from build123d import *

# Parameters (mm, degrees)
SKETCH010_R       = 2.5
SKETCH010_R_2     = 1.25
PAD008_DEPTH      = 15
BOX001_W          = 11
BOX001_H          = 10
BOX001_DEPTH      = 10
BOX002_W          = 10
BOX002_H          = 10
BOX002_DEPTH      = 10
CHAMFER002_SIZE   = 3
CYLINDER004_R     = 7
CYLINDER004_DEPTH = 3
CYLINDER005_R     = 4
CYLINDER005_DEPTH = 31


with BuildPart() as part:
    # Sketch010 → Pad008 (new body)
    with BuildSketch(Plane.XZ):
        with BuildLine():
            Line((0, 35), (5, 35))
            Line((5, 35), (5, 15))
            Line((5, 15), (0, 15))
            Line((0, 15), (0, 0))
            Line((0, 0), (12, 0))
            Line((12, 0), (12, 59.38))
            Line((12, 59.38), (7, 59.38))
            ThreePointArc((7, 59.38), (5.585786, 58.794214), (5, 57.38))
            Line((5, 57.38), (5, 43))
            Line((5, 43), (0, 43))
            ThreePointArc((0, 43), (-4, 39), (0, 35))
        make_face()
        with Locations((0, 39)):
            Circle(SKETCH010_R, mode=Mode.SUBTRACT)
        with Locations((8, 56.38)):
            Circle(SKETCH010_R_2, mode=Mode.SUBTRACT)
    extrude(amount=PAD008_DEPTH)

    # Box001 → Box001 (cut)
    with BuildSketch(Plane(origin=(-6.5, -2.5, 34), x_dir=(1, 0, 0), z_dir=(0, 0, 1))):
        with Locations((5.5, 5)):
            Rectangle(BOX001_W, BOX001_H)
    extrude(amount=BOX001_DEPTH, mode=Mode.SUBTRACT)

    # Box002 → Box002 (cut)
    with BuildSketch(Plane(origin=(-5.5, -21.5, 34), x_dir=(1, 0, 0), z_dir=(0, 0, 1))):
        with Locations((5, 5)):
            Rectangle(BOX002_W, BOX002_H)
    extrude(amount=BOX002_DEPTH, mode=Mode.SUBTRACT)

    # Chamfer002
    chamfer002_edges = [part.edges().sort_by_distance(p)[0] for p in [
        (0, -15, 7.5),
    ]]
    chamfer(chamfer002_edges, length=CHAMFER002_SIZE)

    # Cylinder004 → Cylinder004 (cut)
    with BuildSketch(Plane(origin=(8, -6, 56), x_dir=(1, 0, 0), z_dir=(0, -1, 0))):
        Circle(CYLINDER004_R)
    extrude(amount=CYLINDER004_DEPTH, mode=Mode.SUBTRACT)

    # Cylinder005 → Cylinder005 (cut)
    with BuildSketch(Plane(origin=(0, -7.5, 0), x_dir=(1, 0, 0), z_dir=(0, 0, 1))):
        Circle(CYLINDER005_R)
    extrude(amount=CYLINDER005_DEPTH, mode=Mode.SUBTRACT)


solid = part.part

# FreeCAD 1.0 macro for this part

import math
import FreeCAD as App
import Part
import Sketcher


def edges_at(feature, points):
    """Names of the edges that pass closest to the given points."""
    edges = feature.Shape.Edges
    near = lambda p: min(range(len(edges)), key=lambda i: edges[i].distToShape(Part.Vertex(*p))[0])
    return sorted({f"Edge{near(p) + 1}" for p in points})

doc = App.newDocument("Part")
body = doc.addObject("PartDesign::Body", "Body")

sketch1 = body.newObject("Sketcher::SketchObject", "Sketch")
sketch1.AttachmentSupport = (doc.getObject("XZ_Plane"), [""])
sketch1.MapMode = "FlatFace"
sketch1.addGeometry([
    Part.LineSegment(App.Vector(0, 35, 0), App.Vector(5, 35, 0)),
    Part.LineSegment(App.Vector(5, 35, 0), App.Vector(5, 15, 0)),
    Part.LineSegment(App.Vector(5, 15, 0), App.Vector(0, 15, 0)),
    Part.LineSegment(App.Vector(0, 15, 0), App.Vector(0, 0, 0)),
    Part.LineSegment(App.Vector(0, 0, 0), App.Vector(12, 0, 0)),
    Part.LineSegment(App.Vector(12, 0, 0), App.Vector(12, 59.4, 0)),
    Part.LineSegment(App.Vector(12, 59.4, 0), App.Vector(7, 59.4, 0)),
    Part.ArcOfCircle(Part.Circle(App.Vector(7, 57.4, 0), App.Vector(0, 0, 1), 2), math.radians(90), math.radians(180)),
    Part.LineSegment(App.Vector(5, 57.4, 0), App.Vector(5, 43, 0)),
    Part.LineSegment(App.Vector(5, 43, 0), App.Vector(0, 43, 0)),
    Part.ArcOfCircle(Part.Circle(App.Vector(0, 39, 0), App.Vector(0, 0, 1), 4), math.radians(90), math.radians(270)),
    Part.Circle(App.Vector(0, 39, 0), App.Vector(0, 0, 1), 2.5),
    Part.Circle(App.Vector(8, 56.4, 0), App.Vector(0, 0, 1), 1.2),
], False)
sketch1.addConstraint([
    Sketcher.Constraint("Coincident", 0, 2, 1, 1),
    Sketcher.Constraint("Coincident", 1, 2, 2, 1),
    Sketcher.Constraint("Coincident", 2, 2, 3, 1),
    Sketcher.Constraint("Coincident", 3, 2, 4, 1),
    Sketcher.Constraint("Coincident", 4, 2, 5, 1),
    Sketcher.Constraint("Coincident", 5, 2, 6, 1),
    Sketcher.Constraint("Tangent", 6, 2, 7, 1),
    Sketcher.Constraint("Tangent", 7, 2, 8, 1),
    Sketcher.Constraint("Coincident", 8, 2, 9, 1),
    Sketcher.Constraint("Tangent", 9, 2, 10, 1),
    Sketcher.Constraint("Tangent", 10, 2, 0, 1),
    Sketcher.Constraint("Horizontal", 0),
    Sketcher.Constraint("Vertical", 1),
    Sketcher.Constraint("Horizontal", 2),
    Sketcher.Constraint("Vertical", 3),
    Sketcher.Constraint("Horizontal", 4),
    Sketcher.Constraint("Vertical", 5),
    Sketcher.Constraint("Horizontal", 6),
    Sketcher.Constraint("Vertical", 8),
    Sketcher.Constraint("Horizontal", 9),
    Sketcher.Constraint("Coincident", 3, 2, -1, 1),
    Sketcher.Constraint("Coincident", 11, 3, 10, 3),
    Sketcher.Constraint("PointOnObject", 10, 3, -2),
    Sketcher.Constraint("Vertical", 1, 2, 7, 2),
    Sketcher.Constraint("Equal", 2, 6),
    Sketcher.Constraint("Diameter", 11, 5.0),
    Sketcher.Constraint("Radius", 7, 1.999999),
    Sketcher.Constraint("Radius", 10, 4.0),
    Sketcher.Constraint("Diameter", 12, 2.5),
    Sketcher.Constraint("DistanceX", 0, 1, 0, 2, 5.0),
    Sketcher.Constraint("DistanceY", 1, 2, 1, 1, 20.0),
    Sketcher.Constraint("DistanceY", 3, 2, 3, 1, 15.0),
    Sketcher.Constraint("DistanceX", -1, 1, 12, 3, 8.0),
    Sketcher.Constraint("DistanceY", 12, 3, 7, 3, 1.000001),
    Sketcher.Constraint("DistanceY", 5, 1, 5, 2, 59.38),
])
pad1 = body.newObject("PartDesign::Pad", "Pad")
pad1.Profile = sketch1
pad1.Length = 15

sketch2 = body.newObject("Sketcher::SketchObject", "Sketch001")
sketch2.AttachmentSupport = (doc.getObject("XY_Plane"), [""])
sketch2.MapMode = "FlatFace"
sketch2.AttachmentOffset = App.Placement(App.Vector(0, 0, 34), App.Rotation())
sketch2.addGeometry([
    Part.LineSegment(App.Vector(-6, 8, 0), App.Vector(-6, -2, 0)),
    Part.LineSegment(App.Vector(-6, -2, 0), App.Vector(4, -2, 0)),
    Part.LineSegment(App.Vector(4, -2, 0), App.Vector(4, 8, 0)),
    Part.LineSegment(App.Vector(4, 8, 0), App.Vector(-6, 8, 0)),
], False)
sketch2.addConstraint([
    Sketcher.Constraint("Coincident", 0, 2, 1, 1),
    Sketcher.Constraint("Coincident", 1, 2, 2, 1),
    Sketcher.Constraint("Coincident", 2, 2, 3, 1),
    Sketcher.Constraint("Coincident", 3, 2, 0, 1),
    Sketcher.Constraint("Vertical", 0),
    Sketcher.Constraint("Horizontal", 1),
    Sketcher.Constraint("Vertical", 2),
    Sketcher.Constraint("Horizontal", 3),
    Sketcher.Constraint("DistanceX", 1, 1, 1, 2, 11.0),
    Sketcher.Constraint("DistanceY", 0, 2, 0, 1, 10.0),
    Sketcher.Constraint("DistanceX", 0, 2, -1, 1, 6.5),
    Sketcher.Constraint("DistanceY", 0, 2, -1, 1, 2.5),
])
pocket1 = body.newObject("PartDesign::Pocket", "Pocket")
pocket1.Profile = sketch2
pocket1.Length = 10
pocket1.Reversed = True

sketch3 = body.newObject("Sketcher::SketchObject", "Sketch002")
sketch3.AttachmentSupport = (doc.getObject("XY_Plane"), [""])
sketch3.MapMode = "FlatFace"
sketch3.AttachmentOffset = App.Placement(App.Vector(0, 0, 34), App.Rotation())
sketch3.addGeometry([
    Part.LineSegment(App.Vector(-6, -12, 0), App.Vector(-6, -22, 0)),
    Part.LineSegment(App.Vector(-6, -22, 0), App.Vector(4, -22, 0)),
    Part.LineSegment(App.Vector(4, -22, 0), App.Vector(4, -12, 0)),
    Part.LineSegment(App.Vector(4, -12, 0), App.Vector(-6, -12, 0)),
], False)
sketch3.addConstraint([
    Sketcher.Constraint("Coincident", 0, 2, 1, 1),
    Sketcher.Constraint("Coincident", 1, 2, 2, 1),
    Sketcher.Constraint("Coincident", 2, 2, 3, 1),
    Sketcher.Constraint("Coincident", 3, 2, 0, 1),
    Sketcher.Constraint("Vertical", 0),
    Sketcher.Constraint("Horizontal", 1),
    Sketcher.Constraint("Vertical", 2),
    Sketcher.Constraint("Horizontal", 3),
    Sketcher.Constraint("Equal", 3, 0),
    Sketcher.Constraint("DistanceX", 1, 1, 1, 2, 10.0),
    Sketcher.Constraint("DistanceX", 0, 2, -1, 1, 5.5),
    Sketcher.Constraint("DistanceY", 0, 2, -1, 1, 21.5),
])
pocket2 = body.newObject("PartDesign::Pocket", "Pocket001")
pocket2.Profile = sketch3
pocket2.Length = 10
pocket2.Reversed = True
doc.recompute()

chamfer = body.newObject("PartDesign::Chamfer", "Chamfer")
chamfer.Base = (pocket2, edges_at(pocket2, [(0, -15, 7.5)]))
chamfer.Size = 3

sketch4 = body.newObject("Sketcher::SketchObject", "Sketch003")
sketch4.AttachmentSupport = (doc.getObject("XZ_Plane"), [""])
sketch4.MapMode = "FlatFace"
sketch4.AttachmentOffset = App.Placement(App.Vector(0, 0, 6), App.Rotation())
sketch4.addGeometry(Part.Circle(App.Vector(8, 56, 0), App.Vector(0, 0, 1), 7), False)
sketch4.addConstraint([
    Sketcher.Constraint("Diameter", 0, 14.0),
    Sketcher.Constraint("DistanceX", -1, 1, 0, 3, 8.0),
    Sketcher.Constraint("DistanceY", -1, 1, 0, 3, 56.0),
])
pocket3 = body.newObject("PartDesign::Pocket", "Pocket002")
pocket3.Profile = sketch4
pocket3.Length = 3
pocket3.Reversed = True

sketch5 = body.newObject("Sketcher::SketchObject", "Sketch004")
sketch5.AttachmentSupport = (doc.getObject("XY_Plane"), [""])
sketch5.MapMode = "FlatFace"
sketch5.addGeometry(Part.Circle(App.Vector(0, -7.5, 0), App.Vector(0, 0, 1), 4), False)
sketch5.addConstraint([
    Sketcher.Constraint("PointOnObject", 0, 3, -2),
    Sketcher.Constraint("Diameter", 0, 8.0),
    Sketcher.Constraint("DistanceY", 0, 3, -1, 1, 7.5),
])
pocket4 = body.newObject("PartDesign::Pocket", "Pocket003")
pocket4.Profile = sketch5
pocket4.Length = 31
pocket4.Reversed = True

doc.recompute()
